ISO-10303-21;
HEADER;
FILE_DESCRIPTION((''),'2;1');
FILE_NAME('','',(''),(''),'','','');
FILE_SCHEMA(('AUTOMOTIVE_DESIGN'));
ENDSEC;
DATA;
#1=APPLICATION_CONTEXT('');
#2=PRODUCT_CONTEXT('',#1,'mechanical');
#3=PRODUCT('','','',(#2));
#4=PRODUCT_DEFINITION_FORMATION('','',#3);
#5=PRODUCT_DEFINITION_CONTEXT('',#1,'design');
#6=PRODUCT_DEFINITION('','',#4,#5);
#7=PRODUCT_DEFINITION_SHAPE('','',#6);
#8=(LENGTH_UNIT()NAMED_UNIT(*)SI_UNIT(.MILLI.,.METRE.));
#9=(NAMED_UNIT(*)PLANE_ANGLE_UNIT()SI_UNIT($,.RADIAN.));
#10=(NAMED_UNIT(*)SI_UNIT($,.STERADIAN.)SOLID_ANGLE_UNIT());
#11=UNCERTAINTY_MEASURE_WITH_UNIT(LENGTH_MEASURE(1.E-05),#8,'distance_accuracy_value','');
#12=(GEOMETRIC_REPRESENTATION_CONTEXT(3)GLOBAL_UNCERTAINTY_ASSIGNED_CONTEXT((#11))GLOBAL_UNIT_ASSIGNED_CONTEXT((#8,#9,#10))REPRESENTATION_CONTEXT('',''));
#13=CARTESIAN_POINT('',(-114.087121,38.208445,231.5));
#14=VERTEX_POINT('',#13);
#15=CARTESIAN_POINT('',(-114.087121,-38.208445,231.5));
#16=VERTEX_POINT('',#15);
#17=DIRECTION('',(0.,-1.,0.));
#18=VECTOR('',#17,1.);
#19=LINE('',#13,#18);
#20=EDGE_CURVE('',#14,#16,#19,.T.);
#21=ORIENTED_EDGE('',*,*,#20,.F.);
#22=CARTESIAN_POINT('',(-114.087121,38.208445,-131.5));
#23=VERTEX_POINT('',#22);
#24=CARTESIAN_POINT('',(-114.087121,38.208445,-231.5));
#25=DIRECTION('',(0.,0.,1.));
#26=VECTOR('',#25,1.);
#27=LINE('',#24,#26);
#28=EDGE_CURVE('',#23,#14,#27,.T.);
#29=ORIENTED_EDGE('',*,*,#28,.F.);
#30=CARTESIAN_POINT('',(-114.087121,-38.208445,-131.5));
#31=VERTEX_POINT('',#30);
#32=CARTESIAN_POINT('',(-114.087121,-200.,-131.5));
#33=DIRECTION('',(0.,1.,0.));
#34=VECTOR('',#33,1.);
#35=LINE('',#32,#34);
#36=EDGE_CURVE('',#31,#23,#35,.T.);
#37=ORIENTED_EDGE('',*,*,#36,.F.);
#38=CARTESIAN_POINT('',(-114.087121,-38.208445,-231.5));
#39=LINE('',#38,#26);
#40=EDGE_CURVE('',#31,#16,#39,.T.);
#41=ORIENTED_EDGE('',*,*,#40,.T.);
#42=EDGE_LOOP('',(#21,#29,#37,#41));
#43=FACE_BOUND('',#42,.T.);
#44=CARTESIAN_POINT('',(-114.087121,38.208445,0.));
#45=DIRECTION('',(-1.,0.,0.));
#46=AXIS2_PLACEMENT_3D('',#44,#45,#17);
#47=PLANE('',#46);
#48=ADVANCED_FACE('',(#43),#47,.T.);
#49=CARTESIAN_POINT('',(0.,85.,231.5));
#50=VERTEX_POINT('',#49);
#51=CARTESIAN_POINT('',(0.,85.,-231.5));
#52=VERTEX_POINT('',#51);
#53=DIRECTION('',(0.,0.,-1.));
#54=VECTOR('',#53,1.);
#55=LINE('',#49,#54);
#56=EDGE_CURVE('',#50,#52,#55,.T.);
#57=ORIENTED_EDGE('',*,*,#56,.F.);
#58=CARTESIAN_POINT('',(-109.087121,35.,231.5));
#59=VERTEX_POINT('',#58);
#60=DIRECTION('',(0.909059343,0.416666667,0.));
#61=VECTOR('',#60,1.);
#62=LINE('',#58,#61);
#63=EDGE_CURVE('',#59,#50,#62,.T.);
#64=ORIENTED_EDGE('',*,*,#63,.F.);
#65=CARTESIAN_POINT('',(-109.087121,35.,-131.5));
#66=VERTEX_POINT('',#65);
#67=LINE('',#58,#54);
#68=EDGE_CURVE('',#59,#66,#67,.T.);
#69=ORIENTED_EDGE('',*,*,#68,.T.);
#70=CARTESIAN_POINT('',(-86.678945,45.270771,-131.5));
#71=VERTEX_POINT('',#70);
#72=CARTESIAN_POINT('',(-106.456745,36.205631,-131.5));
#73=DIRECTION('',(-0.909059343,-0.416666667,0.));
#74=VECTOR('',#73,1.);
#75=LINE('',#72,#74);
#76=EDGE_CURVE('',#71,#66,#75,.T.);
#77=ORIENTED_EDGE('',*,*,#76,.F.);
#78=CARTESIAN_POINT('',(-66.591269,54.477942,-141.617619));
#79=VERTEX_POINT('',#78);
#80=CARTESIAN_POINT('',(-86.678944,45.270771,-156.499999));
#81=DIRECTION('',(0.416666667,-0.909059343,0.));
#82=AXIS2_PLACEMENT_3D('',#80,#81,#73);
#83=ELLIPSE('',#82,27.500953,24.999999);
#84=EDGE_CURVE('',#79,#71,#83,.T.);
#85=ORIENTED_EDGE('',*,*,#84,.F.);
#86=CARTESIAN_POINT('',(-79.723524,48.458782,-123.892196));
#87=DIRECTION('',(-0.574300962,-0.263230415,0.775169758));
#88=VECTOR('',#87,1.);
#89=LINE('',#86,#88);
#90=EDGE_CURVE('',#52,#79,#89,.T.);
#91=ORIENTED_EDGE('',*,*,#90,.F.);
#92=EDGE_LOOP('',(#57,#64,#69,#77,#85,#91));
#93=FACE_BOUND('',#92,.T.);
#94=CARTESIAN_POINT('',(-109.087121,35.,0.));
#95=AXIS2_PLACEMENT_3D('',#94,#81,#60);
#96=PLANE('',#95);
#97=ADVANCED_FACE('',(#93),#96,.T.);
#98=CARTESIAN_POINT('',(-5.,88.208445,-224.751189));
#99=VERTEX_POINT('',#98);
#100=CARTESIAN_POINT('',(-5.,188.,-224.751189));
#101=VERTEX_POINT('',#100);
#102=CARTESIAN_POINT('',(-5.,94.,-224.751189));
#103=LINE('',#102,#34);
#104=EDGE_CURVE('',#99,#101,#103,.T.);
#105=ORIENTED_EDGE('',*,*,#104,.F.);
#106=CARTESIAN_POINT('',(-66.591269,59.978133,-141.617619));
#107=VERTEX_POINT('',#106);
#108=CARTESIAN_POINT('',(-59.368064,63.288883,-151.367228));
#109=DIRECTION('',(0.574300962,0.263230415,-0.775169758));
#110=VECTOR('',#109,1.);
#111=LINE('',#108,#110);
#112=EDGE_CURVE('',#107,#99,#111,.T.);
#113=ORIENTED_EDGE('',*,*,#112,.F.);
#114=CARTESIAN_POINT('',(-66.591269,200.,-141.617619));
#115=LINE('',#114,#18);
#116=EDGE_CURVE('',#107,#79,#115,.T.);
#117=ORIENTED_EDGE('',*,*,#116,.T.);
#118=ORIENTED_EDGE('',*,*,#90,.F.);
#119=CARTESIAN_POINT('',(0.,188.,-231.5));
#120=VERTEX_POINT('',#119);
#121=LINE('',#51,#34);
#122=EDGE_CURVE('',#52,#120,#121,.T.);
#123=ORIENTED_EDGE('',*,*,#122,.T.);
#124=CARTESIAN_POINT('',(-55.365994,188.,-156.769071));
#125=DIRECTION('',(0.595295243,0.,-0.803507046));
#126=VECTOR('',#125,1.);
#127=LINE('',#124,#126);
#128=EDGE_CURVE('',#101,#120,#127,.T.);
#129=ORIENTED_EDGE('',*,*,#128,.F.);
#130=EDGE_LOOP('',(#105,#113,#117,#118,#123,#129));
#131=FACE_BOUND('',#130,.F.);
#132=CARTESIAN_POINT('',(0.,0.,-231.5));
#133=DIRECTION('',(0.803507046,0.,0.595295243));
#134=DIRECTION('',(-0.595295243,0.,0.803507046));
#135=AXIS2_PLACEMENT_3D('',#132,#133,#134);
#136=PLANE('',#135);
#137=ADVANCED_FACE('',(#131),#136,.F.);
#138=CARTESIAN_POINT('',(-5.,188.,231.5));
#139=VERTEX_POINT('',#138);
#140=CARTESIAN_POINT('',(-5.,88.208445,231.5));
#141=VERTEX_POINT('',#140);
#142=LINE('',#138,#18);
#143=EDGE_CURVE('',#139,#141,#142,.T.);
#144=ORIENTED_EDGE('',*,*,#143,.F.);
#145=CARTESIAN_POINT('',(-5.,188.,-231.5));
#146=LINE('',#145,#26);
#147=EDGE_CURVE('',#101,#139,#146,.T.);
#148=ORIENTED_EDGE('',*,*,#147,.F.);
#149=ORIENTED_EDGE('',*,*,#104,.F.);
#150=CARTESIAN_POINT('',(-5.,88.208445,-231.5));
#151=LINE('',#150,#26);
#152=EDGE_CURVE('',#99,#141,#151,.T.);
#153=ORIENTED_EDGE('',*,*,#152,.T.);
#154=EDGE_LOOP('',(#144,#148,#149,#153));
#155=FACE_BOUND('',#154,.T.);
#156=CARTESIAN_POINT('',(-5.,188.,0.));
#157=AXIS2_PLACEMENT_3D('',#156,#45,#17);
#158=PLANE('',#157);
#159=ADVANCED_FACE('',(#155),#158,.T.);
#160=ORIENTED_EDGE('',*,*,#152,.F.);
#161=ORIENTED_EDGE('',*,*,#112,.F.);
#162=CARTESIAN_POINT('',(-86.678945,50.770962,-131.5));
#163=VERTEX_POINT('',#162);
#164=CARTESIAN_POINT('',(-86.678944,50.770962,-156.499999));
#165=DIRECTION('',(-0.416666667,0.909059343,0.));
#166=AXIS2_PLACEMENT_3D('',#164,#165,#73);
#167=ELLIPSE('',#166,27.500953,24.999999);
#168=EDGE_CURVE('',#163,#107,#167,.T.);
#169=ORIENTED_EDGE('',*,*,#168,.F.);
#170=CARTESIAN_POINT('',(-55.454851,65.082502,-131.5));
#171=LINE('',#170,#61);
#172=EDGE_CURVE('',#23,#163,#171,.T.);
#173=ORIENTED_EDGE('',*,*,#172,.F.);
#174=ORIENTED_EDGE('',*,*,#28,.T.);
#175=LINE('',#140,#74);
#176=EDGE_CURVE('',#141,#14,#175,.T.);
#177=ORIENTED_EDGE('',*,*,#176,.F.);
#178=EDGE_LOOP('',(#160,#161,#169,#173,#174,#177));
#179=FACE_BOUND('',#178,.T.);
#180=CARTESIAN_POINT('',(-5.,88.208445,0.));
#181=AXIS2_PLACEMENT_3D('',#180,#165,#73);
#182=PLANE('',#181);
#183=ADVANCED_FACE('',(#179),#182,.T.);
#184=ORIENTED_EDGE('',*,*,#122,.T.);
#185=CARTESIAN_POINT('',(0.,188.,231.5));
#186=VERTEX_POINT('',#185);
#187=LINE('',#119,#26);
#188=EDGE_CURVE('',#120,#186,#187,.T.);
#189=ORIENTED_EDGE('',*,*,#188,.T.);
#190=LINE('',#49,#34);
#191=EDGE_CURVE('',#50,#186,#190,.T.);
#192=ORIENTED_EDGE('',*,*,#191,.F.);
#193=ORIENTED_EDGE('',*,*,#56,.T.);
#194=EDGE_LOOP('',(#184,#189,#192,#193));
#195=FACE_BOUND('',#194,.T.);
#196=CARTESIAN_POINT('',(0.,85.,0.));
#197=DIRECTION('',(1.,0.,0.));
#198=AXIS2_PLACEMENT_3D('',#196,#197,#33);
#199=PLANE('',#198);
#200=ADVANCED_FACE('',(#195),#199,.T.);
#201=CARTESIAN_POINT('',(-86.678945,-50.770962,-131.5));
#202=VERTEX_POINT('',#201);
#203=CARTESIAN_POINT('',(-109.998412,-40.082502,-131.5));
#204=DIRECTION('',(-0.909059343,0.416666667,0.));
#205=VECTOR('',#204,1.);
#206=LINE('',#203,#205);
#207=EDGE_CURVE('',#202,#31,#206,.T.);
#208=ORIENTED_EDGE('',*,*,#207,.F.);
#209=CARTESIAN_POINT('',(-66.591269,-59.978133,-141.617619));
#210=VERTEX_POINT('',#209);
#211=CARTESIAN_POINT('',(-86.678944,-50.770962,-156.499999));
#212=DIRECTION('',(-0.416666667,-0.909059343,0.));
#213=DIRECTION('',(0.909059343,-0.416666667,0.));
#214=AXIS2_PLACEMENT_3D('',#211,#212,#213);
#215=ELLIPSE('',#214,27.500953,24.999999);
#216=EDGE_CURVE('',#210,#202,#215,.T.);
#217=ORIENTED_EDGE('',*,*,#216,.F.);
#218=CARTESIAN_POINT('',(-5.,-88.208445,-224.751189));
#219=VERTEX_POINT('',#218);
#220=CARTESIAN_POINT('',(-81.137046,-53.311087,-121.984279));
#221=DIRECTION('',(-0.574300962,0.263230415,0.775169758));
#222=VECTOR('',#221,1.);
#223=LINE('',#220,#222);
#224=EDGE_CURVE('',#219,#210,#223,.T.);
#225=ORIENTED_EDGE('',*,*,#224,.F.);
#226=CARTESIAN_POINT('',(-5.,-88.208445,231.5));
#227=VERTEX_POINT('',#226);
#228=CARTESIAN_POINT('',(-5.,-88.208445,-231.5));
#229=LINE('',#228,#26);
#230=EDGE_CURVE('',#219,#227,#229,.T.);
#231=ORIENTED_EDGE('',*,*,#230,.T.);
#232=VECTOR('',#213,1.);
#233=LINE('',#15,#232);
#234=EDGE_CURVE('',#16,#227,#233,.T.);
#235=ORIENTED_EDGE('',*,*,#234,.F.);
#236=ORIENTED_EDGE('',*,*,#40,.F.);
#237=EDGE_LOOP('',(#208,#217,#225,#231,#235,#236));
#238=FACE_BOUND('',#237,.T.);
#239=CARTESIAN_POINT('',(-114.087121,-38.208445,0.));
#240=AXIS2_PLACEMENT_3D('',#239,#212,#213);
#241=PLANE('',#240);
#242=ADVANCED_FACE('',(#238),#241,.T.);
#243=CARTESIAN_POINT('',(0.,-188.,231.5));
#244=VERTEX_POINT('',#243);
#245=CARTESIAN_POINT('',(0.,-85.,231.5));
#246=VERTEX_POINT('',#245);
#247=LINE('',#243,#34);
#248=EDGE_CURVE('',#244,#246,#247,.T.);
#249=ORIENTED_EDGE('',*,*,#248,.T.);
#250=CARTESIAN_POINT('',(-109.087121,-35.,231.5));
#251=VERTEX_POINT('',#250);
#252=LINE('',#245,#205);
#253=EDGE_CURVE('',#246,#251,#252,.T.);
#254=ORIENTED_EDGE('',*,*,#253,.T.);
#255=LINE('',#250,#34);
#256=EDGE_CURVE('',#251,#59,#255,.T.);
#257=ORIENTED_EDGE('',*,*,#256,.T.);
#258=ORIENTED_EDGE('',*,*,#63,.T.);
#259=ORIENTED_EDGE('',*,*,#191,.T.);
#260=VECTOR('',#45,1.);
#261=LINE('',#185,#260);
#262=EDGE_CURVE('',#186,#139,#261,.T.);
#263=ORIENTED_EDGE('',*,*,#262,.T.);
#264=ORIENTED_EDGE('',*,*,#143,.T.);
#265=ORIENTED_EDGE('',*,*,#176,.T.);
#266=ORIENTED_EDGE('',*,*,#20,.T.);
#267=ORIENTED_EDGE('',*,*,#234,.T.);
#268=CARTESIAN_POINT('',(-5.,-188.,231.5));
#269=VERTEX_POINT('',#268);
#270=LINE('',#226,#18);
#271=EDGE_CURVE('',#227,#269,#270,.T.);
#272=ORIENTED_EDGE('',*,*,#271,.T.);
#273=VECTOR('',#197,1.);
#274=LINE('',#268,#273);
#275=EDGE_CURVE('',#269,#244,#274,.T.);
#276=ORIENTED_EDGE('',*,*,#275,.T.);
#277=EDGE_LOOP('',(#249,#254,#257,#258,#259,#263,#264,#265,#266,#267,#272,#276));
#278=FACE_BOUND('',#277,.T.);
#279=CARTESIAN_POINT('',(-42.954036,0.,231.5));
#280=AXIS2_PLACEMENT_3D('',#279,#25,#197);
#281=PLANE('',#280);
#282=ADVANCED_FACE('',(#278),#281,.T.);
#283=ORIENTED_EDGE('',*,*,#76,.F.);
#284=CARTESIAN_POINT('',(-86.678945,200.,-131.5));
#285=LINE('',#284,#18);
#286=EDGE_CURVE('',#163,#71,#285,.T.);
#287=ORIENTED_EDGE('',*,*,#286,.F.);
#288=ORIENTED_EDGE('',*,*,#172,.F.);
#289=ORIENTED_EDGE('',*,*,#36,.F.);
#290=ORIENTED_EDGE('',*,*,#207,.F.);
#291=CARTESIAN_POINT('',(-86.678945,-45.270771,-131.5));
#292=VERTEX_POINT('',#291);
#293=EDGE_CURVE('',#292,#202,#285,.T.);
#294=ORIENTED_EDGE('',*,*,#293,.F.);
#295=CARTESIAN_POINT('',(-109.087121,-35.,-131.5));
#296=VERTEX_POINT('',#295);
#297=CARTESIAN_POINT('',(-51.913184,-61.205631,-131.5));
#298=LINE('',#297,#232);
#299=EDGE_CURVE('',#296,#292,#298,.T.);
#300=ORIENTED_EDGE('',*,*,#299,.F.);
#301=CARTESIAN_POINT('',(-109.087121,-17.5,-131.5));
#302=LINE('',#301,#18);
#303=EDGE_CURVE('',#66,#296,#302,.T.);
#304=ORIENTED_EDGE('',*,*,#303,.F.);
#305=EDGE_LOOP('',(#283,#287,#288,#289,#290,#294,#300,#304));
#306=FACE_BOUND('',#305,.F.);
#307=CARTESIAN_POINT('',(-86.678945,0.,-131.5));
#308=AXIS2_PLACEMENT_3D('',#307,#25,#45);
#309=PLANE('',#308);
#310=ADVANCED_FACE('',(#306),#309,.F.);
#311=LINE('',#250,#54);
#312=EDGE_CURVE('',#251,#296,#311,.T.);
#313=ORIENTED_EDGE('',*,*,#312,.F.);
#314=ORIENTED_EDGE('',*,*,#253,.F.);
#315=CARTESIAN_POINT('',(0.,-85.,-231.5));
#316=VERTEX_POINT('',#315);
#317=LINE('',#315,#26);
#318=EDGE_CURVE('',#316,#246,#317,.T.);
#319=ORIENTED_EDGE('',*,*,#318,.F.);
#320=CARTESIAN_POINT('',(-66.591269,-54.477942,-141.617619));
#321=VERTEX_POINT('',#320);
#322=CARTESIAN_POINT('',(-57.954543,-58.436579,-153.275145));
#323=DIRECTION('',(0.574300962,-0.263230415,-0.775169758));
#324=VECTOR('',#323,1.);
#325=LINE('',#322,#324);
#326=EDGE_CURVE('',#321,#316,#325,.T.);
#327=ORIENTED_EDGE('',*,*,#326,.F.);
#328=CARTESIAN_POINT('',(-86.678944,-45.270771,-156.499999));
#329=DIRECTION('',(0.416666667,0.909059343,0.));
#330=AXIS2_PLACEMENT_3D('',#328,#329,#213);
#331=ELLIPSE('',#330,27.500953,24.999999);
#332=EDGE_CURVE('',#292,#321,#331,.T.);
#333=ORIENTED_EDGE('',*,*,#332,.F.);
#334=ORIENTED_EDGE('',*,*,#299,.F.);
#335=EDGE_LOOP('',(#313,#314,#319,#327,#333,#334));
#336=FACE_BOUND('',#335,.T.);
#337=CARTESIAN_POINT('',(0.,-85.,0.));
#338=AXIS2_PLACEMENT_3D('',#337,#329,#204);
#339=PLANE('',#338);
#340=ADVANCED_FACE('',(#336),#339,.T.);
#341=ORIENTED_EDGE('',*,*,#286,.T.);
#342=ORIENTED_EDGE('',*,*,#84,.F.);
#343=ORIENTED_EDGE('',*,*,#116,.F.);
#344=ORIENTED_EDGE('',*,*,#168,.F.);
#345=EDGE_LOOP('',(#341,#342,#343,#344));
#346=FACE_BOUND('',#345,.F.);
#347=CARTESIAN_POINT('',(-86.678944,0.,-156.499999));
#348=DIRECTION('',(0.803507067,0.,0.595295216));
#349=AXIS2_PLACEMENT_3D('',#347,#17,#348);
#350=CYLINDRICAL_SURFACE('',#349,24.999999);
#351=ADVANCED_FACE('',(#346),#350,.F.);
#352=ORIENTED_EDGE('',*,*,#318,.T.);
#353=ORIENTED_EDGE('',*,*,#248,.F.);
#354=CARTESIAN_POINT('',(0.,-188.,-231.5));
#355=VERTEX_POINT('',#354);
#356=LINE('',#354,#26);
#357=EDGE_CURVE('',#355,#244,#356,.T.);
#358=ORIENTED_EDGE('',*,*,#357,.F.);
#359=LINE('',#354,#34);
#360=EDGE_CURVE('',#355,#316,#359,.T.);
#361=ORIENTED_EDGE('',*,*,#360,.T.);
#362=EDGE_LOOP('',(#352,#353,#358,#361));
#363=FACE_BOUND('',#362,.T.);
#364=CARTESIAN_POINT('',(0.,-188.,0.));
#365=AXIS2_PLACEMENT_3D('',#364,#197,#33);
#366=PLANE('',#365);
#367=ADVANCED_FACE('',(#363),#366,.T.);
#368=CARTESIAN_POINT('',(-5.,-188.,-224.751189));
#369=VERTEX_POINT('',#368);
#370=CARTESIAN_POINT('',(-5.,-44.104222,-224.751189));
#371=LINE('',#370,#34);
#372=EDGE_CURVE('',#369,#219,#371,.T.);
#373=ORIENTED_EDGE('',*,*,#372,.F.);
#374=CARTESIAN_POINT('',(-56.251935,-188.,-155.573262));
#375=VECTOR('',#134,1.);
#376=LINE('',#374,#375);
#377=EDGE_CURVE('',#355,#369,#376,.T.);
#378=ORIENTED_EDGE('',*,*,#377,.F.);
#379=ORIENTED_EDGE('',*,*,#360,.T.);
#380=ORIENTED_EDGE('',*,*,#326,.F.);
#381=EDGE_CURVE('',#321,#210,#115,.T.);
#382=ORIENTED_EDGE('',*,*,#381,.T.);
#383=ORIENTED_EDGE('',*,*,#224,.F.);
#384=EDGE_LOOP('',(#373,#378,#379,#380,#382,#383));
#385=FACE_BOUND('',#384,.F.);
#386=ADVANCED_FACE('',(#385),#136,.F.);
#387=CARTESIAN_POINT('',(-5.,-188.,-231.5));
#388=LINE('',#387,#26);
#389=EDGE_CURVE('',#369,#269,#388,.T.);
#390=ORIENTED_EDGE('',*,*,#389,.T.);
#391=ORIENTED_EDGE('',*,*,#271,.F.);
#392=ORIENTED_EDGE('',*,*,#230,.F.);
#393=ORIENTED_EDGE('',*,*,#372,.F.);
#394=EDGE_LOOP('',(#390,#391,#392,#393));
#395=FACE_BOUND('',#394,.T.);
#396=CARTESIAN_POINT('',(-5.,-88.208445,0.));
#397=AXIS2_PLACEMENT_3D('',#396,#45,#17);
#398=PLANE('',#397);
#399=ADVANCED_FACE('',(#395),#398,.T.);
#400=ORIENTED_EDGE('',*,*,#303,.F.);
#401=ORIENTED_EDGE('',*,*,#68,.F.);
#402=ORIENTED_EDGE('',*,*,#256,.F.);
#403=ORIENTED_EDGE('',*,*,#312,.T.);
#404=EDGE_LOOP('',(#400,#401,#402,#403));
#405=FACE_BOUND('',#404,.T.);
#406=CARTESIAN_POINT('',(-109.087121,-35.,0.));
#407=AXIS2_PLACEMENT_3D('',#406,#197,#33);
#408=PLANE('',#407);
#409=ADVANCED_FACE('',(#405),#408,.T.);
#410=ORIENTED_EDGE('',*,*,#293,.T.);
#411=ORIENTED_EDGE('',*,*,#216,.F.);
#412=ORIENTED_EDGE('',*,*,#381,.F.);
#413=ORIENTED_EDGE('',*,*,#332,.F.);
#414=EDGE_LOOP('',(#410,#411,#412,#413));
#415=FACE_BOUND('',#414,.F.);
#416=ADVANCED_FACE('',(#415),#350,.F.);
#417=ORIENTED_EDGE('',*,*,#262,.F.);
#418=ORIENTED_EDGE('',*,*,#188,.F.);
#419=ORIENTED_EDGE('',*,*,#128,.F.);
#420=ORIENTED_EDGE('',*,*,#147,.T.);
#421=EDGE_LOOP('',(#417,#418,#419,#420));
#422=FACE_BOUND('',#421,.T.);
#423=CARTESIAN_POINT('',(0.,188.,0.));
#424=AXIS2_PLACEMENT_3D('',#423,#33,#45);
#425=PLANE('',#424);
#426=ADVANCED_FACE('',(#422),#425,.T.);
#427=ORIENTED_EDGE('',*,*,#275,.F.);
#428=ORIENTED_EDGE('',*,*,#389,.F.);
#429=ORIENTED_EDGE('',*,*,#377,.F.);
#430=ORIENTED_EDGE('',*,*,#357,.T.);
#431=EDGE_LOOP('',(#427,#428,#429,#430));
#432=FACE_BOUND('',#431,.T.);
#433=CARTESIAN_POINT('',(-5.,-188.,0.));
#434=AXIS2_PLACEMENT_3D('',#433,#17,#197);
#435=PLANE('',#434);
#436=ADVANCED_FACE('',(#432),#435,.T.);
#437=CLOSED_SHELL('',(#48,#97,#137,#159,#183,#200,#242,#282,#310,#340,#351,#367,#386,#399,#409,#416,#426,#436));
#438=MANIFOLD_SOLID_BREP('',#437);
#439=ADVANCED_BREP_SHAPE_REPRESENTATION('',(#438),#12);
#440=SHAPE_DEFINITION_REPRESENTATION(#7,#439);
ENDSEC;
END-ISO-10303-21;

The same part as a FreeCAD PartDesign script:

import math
import FreeCAD as App
import Part
import Sketcher


def add_polygon(sketch, points):
    """Adds a closed chain of lines whose ends are joined by coincident constraints."""
    first, n = sketch.GeometryCount, len(points)
    for a, b in zip(points, points[1:] + points[:1]):
        sketch.addGeometry(Part.LineSegment(App.Vector(*a, 0), App.Vector(*b, 0)), False)
    for i in range(n):
        sketch.addConstraint(Sketcher.Constraint("Coincident", first + i, 2, first + (i + 1) % n, 1))

doc = App.newDocument("Part")
body = doc.addObject("PartDesign::Body", "Body")

# Sketch on XY plane
sketch1 = body.newObject("Sketcher::SketchObject", "Sketch")
sketch1.AttachmentSupport = (doc.getObject("XY_Plane"), [""])
sketch1.MapMode = "FlatFace"
add_polygon(sketch1, [(0, 85), (0, 188), (-5, 188), (-5, 88.208445), (-114.087121, 38.208445), (-114.087121, -38.208445), (-5, -88.208445), (-5, -188), (0, -188), (0, -85), (-109.087121, -35), (-109.087121, 35)])  # lines 0-11
sketch1.addConstraint(Sketcher.Constraint("Vertical", 0))
sketch1.addConstraint(Sketcher.Constraint("Horizontal", 1))
sketch1.addConstraint(Sketcher.Constraint("Vertical", 2))
sketch1.addConstraint(Sketcher.Constraint("Vertical", 4))
sketch1.addConstraint(Sketcher.Constraint("Vertical", 6))
sketch1.addConstraint(Sketcher.Constraint("Horizontal", 7))
sketch1.addConstraint(Sketcher.Constraint("Vertical", 8))
sketch1.addConstraint(Sketcher.Constraint("Vertical", 10))
sketch1.addConstraint(Sketcher.Constraint("Symmetric", 0, 2, 7, 2, -1, 1))
sketch1.addConstraint(Sketcher.Constraint("Symmetric", 2, 2, 5, 2, -1))
sketch1.addConstraint(Sketcher.Constraint("Symmetric", 8, 2, 11, 2, -1))
sketch1.addConstraint(Sketcher.Constraint("Parallel", 5, 9))
sketch1.addConstraint(Sketcher.Constraint("Parallel", 3, 11))
sketch1.addConstraint(Sketcher.Constraint("Equal", 3, 5))
sketch1.addConstraint(Sketcher.Constraint("Equal", 5, 9))
sketch1.addConstraint(Sketcher.Constraint("DistanceX", 1, 2, 1, 1, 5.0))
sketch1.addConstraint(Sketcher.Constraint("DistanceY", 0, 1, 0, 2, 103.0))
sketch1.addConstraint(Sketcher.Constraint("DistanceY", 10, 1, 10, 2, 70.0))
sketch1.addConstraint(Sketcher.Constraint("Distance", 3, 120.0))
sketch1.addConstraint(Sketcher.Constraint("DistanceY", -1, 1, 0, 2, 188.0))
sketch1.addConstraint(Sketcher.Constraint("DistanceY", 4, 2, 4, 1, 76.41689))
pad1 = body.newObject("PartDesign::Pad", "Pad")
pad1.Profile = sketch1
pad1.Length = 463
pad1.Midplane = True

# Sketch on XZ plane
sketch2 = body.newObject("Sketcher::SketchObject", "Sketch001")
sketch2.AttachmentSupport = (doc.getObject("XZ_Plane"), [""])
sketch2.MapMode = "FlatFace"
sketch2.addGeometry(Part.LineSegment(App.Vector(0, -231.5, 0), App.Vector(-66.591269, -141.617619, 0)), False)
sketch2.addGeometry(Part.ArcOfCircle(Part.Circle(App.Vector(-86.678944, -156.499999, 0), App.Vector(0, 0, 1), 24.999999), math.radians(36.53368), math.radians(90.000001)), False)
sketch2.addGeometry(Part.LineSegment(App.Vector(-86.678945, -131.5, 0), App.Vector(-114.087121, -131.5, 0)), False)
sketch2.addGeometry(Part.LineSegment(App.Vector(-114.087121, -131.5, 0), App.Vector(-114.087121, -231.5, 0)), False)
sketch2.addGeometry(Part.LineSegment(App.Vector(-114.087121, -231.5, 0), App.Vector(0, -231.5, 0)), False)
sketch2.addConstraint(Sketcher.Constraint("Tangent", 0, 2, 1, 1))
sketch2.addConstraint(Sketcher.Constraint("Tangent", 1, 2, 2, 1))
sketch2.addConstraint(Sketcher.Constraint("Coincident", 2, 2, 3, 1))
sketch2.addConstraint(Sketcher.Constraint("Coincident", 3, 2, 4, 1))
sketch2.addConstraint(Sketcher.Constraint("Coincident", 4, 2, 0, 1))
sketch2.addConstraint(Sketcher.Constraint("Horizontal", 2))
sketch2.addConstraint(Sketcher.Constraint("Vertical", 3))
sketch2.addConstraint(Sketcher.Constraint("Horizontal", 4))
sketch2.addConstraint(Sketcher.Constraint("PointOnObject", 4, 2, -2))
sketch2.addConstraint(Sketcher.Constraint("Radius", 1, 24.999999))
sketch2.addConstraint(Sketcher.Constraint("DistanceY", 3, 2, 3, 1, 100.0))
sketch2.addConstraint(Sketcher.Constraint("DistanceY", 1, 3, -1, 1, 156.499999))
sketch2.addConstraint(Sketcher.Constraint("DistanceX", 4, 1, 4, 2, 114.087121))
sketch2.addConstraint(Sketcher.Constraint("DistanceX", 2, 2, 2, 1, 27.408176))
pocket1 = body.newObject("PartDesign::Pocket", "Pocket")
pocket1.Profile = sketch2
pocket1.Length = 400
pocket1.Midplane = True

doc.recompute()
